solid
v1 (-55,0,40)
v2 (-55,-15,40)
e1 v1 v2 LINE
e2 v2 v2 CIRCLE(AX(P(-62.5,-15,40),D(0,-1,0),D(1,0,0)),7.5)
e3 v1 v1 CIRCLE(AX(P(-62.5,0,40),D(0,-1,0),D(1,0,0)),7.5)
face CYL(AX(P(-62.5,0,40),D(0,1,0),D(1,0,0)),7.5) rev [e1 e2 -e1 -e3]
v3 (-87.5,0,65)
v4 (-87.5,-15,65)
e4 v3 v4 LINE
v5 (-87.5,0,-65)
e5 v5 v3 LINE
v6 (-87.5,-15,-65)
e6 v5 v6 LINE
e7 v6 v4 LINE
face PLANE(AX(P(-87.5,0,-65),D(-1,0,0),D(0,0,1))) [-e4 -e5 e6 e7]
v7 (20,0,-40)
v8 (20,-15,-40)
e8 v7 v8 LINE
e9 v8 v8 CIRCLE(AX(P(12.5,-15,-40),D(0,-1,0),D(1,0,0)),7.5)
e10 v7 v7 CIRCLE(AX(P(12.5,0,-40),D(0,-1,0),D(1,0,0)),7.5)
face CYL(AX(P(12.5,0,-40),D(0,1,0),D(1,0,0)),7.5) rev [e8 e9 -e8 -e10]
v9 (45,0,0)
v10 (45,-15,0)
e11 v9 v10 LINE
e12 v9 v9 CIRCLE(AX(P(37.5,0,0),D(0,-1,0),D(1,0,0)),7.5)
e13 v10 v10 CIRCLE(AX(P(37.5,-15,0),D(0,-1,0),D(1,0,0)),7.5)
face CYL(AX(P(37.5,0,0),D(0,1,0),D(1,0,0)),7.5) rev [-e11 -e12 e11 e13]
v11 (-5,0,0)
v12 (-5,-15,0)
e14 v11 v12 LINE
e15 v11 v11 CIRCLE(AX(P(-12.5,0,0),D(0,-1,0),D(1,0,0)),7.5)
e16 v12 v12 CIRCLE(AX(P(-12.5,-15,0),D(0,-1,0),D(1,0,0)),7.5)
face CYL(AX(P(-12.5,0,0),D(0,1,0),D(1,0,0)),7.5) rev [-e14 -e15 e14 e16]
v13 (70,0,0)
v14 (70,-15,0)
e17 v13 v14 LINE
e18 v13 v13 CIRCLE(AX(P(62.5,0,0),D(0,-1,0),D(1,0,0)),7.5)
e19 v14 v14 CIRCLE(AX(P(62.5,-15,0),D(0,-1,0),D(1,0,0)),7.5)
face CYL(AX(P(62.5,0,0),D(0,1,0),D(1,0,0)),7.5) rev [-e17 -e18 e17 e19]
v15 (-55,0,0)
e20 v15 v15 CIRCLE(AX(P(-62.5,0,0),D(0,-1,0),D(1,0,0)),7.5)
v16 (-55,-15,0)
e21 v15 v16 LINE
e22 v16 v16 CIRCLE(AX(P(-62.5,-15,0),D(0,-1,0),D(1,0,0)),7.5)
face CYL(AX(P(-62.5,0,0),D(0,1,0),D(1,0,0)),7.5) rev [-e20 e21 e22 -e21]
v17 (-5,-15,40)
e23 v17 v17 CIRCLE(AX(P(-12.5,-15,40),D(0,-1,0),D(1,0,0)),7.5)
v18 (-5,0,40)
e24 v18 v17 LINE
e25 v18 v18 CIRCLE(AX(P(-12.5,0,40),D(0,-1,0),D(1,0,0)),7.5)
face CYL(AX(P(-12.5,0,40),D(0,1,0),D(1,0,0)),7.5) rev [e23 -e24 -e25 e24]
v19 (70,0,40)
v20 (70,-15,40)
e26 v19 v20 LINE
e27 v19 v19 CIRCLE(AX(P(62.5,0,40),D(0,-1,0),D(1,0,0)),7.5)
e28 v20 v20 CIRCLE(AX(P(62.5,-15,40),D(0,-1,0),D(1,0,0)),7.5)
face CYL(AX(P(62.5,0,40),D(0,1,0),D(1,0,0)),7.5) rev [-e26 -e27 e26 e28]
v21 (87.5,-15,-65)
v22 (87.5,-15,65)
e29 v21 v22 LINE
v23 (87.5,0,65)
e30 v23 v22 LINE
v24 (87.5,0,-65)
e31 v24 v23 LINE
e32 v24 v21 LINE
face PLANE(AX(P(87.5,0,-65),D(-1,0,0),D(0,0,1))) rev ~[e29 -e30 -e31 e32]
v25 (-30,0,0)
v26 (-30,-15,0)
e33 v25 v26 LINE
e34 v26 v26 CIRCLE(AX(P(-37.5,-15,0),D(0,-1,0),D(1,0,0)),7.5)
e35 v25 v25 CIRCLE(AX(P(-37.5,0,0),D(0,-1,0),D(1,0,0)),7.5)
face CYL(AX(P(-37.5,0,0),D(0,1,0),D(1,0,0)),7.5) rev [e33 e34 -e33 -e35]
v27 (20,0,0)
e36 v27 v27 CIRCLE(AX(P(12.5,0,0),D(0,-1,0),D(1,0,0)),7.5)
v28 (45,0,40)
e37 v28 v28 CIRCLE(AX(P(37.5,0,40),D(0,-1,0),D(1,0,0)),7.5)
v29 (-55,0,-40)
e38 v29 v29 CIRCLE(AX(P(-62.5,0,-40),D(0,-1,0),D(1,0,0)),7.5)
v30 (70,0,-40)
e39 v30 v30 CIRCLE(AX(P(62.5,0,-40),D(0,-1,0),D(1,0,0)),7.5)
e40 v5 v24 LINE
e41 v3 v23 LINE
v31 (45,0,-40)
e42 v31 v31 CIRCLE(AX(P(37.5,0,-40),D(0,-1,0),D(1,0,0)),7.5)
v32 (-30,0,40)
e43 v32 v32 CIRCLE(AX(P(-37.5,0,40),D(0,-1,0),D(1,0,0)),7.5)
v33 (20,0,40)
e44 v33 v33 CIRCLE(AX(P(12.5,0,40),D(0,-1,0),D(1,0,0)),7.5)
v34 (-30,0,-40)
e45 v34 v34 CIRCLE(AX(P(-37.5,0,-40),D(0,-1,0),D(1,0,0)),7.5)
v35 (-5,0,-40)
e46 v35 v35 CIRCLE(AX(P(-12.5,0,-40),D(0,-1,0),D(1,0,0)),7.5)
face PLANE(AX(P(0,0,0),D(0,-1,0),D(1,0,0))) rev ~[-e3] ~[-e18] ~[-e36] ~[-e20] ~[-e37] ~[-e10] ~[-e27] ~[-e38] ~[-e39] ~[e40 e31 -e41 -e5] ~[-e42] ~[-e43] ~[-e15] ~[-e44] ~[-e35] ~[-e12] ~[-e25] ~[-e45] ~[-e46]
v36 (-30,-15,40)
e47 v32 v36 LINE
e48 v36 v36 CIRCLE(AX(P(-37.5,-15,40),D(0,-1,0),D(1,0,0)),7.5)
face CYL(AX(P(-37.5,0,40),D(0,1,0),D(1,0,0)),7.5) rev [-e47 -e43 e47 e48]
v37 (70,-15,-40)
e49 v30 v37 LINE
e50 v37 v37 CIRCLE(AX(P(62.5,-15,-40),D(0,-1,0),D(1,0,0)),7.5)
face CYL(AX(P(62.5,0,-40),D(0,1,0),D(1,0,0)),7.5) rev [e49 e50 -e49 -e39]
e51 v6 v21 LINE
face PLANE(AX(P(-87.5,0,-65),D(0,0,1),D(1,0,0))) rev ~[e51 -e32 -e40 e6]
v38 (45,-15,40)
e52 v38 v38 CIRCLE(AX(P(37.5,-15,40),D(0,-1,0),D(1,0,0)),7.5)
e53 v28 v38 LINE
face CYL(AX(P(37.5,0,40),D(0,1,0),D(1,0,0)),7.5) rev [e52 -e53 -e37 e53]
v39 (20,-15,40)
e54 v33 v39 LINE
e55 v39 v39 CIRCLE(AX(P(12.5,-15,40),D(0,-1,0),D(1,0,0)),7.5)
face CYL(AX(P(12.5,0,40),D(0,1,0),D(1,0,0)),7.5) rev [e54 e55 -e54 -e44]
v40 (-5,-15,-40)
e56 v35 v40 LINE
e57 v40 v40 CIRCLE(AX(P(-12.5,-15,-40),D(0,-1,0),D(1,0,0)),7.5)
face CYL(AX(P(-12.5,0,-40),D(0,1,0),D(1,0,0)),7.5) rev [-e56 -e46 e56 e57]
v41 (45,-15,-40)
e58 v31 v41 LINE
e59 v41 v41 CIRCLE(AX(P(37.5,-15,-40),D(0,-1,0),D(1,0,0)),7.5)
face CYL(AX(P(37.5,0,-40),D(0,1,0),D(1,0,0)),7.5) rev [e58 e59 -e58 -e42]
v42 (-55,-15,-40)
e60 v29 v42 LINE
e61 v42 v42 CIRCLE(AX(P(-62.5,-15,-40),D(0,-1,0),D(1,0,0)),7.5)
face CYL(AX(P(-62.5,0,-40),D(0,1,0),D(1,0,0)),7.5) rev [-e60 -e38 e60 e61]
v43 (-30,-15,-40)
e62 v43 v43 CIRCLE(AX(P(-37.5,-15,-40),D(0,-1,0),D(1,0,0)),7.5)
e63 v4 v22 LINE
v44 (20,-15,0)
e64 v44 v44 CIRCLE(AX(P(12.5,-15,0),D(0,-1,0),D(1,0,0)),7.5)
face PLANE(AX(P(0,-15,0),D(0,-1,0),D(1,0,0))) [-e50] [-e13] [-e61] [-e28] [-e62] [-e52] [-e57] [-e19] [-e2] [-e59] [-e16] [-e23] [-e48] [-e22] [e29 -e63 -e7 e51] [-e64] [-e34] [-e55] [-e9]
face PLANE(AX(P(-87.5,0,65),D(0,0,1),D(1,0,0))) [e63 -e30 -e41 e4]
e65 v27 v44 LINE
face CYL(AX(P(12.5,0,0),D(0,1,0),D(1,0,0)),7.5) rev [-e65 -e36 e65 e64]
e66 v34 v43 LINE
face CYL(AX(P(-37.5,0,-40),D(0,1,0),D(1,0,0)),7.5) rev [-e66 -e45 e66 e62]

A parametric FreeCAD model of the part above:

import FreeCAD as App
import Part
import Sketcher
from FreeCAD import Vector


def add_polygon(sketch, points):
    """Adds a closed chain of lines whose ends are joined by coincident constraints."""
    first, n = sketch.GeometryCount, len(points)
    for a, b in zip(points, points[1:] + points[:1]):
        sketch.addGeometry(Part.LineSegment(App.Vector(*a, 0), App.Vector(*b, 0)), False)
    for i in range(n):
        sketch.addConstraint(Sketcher.Constraint("Coincident", first + i, 2, first + (i + 1) % n, 1))

doc = App.newDocument("Part")
body = doc.addObject("PartDesign::Body", "Body")

sketch1 = body.newObject("Sketcher::SketchObject", "Sketch")
sketch1.AttachmentSupport = (doc.getObject("XZ_Plane"), [""])
sketch1.MapMode = "FlatFace"
add_polygon(sketch1, [(-88, 65), (-88, -65), (88, -65), (88, 65)])
sketch1.addGeometry(Part.Circle(Vector(-62, -40, 0), Vector(0, 0, 1), 8), False)
sketch1.addGeometry(Part.Circle(Vector(-38, -40, 0), Vector(0, 0, 1), 8), False)
sketch1.addGeometry(Part.Circle(Vector(-12, -40, 0), Vector(0, 0, 1), 8), False)
sketch1.addGeometry(Part.Circle(Vector(12, -40, 0), Vector(0, 0, 1), 8), False)
sketch1.addGeometry(Part.Circle(Vector(38, -40, 0), Vector(0, 0, 1), 8), False)
sketch1.addGeometry(Part.Circle(Vector(62, -40, 0), Vector(0, 0, 1), 8), False)
sketch1.addGeometry(Part.Circle(Vector(-62, 0, 0), Vector(0, 0, 1), 8), False)
sketch1.addGeometry(Part.Circle(Vector(-38, 0, 0), Vector(0, 0, 1), 8), False)
sketch1.addGeometry(Part.Circle(Vector(-12, 0, 0), Vector(0, 0, 1), 8), False)
sketch1.addGeometry(Part.Circle(Vector(-62, 40, 0), Vector(0, 0, 1), 8), False)
sketch1.addGeometry(Part.Circle(Vector(-38, 40, 0), Vector(0, 0, 1), 8), False)
sketch1.addGeometry(Part.Circle(Vector(-12, 40, 0), Vector(0, 0, 1), 8), False)
sketch1.addGeometry(Part.Circle(Vector(12, 0, 0), Vector(0, 0, 1), 8), False)
sketch1.addGeometry(Part.Circle(Vector(38, 0, 0), Vector(0, 0, 1), 8), False)
sketch1.addGeometry(Part.Circle(Vector(62, 0, 0), Vector(0, 0, 1), 8), False)
sketch1.addGeometry(Part.Circle(Vector(12, 40, 0), Vector(0, 0, 1), 8), False)
sketch1.addGeometry(Part.Circle(Vector(38, 40, 0), Vector(0, 0, 1), 8), False)
sketch1.addGeometry(Part.Circle(Vector(62, 40, 0), Vector(0, 0, 1), 8), False)
sketch1.addConstraint([
    Sketcher.Constraint("Vertical", 0),
    Sketcher.Constraint("Horizontal", 1),
    Sketcher.Constraint("Vertical", 2),
    Sketcher.Constraint("Horizontal", 3),
    Sketcher.Constraint("Equal", 4, 5),
    Sketcher.Constraint("Equal", 5, 6),
    Sketcher.Constraint("Equal", 6, 7),
    Sketcher.Constraint("Equal", 7, 8),
    Sketcher.Constraint("Equal", 8, 9),
    Sketcher.Constraint("Equal", 9, 10),
    Sketcher.Constraint("Equal", 10, 11),
    Sketcher.Constraint("Equal", 11, 12),
    Sketcher.Constraint("Equal", 12, 13),
    Sketcher.Constraint("Equal", 13, 14),
    Sketcher.Constraint("Equal", 14, 15),
    Sketcher.Constraint("Equal", 15, 16),
    Sketcher.Constraint("Equal", 16, 17),
    Sketcher.Constraint("Equal", 17, 18),
    Sketcher.Constraint("Equal", 18, 19),
    Sketcher.Constraint("Equal", 19, 20),
    Sketcher.Constraint("Equal", 20, 21),
    Sketcher.Constraint("Symmetric", 9, 3, 13, 3, -1, 1),
    Sketcher.Constraint("Symmetric", 8, 3, 14, 3, -1, 1),
    Sketcher.Constraint("Symmetric", 7, 3, 15, 3, -1, 1),
    Sketcher.Constraint("Symmetric", 12, 3, 16, 3, -1, 1),
    Sketcher.Constraint("Symmetric", 11, 3, 17, 3, -1, 1),
    Sketcher.Constraint("Symmetric", 10, 3, 18, 3, -1, 1),
    Sketcher.Constraint("Symmetric", 6, 3, 19, 3, -1, 1),
    Sketcher.Constraint("Symmetric", 5, 3, 20, 3, -1, 1),
    Sketcher.Constraint("Symmetric", 4, 3, 21, 3, -1, 1),
    Sketcher.Constraint("Symmetric", 0, 2, 2, 2, -1, 1),
    Sketcher.Constraint("Symmetric", 6, 3, 7, 3, -2),
    Sketcher.Constraint("Symmetric", 5, 3, 8, 3, -2),
    Sketcher.Constraint("Symmetric", 4, 3, 9, 3, -2),
    Sketcher.Constraint("PointOnObject", 10, 3, -1),
    Sketcher.Constraint("PointOnObject", 11, 3, -1),
    Sketcher.Constraint("PointOnObject", 12, 3, -1),
    Sketcher.Constraint("Horizontal", 4, 3, 5, 3),
    Sketcher.Constraint("Horizontal", 5, 3, 6, 3),
    Sketcher.Constraint("Vertical", 4, 3, 10, 3),
    Sketcher.Constraint("Vertical", 5, 3, 11, 3),
    Sketcher.Constraint("Vertical", 6, 3, 12, 3),
    Sketcher.Constraint("Diameter", 4, 15.0),
    Sketcher.Constraint("DistanceX", 1, 1, 1, 2, 175.0),
    Sketcher.Constraint("DistanceY", 0, 2, 0, 1, 130.0),
    Sketcher.Constraint("DistanceY", 4, 3, -1, 1, 40.0),
    Sketcher.Constraint("DistanceX", 4, 3, 5, 3, 25.0),
    Sketcher.Constraint("DistanceX", 5, 3, 6, 3, 25.0),
    Sketcher.Constraint("DistanceX", 6, 3, 7, 3, 25.0),
])
pad1 = body.newObject("PartDesign::Pad", "Pad")
pad1.Profile = sketch1
pad1.Length = 15

doc.recompute()
